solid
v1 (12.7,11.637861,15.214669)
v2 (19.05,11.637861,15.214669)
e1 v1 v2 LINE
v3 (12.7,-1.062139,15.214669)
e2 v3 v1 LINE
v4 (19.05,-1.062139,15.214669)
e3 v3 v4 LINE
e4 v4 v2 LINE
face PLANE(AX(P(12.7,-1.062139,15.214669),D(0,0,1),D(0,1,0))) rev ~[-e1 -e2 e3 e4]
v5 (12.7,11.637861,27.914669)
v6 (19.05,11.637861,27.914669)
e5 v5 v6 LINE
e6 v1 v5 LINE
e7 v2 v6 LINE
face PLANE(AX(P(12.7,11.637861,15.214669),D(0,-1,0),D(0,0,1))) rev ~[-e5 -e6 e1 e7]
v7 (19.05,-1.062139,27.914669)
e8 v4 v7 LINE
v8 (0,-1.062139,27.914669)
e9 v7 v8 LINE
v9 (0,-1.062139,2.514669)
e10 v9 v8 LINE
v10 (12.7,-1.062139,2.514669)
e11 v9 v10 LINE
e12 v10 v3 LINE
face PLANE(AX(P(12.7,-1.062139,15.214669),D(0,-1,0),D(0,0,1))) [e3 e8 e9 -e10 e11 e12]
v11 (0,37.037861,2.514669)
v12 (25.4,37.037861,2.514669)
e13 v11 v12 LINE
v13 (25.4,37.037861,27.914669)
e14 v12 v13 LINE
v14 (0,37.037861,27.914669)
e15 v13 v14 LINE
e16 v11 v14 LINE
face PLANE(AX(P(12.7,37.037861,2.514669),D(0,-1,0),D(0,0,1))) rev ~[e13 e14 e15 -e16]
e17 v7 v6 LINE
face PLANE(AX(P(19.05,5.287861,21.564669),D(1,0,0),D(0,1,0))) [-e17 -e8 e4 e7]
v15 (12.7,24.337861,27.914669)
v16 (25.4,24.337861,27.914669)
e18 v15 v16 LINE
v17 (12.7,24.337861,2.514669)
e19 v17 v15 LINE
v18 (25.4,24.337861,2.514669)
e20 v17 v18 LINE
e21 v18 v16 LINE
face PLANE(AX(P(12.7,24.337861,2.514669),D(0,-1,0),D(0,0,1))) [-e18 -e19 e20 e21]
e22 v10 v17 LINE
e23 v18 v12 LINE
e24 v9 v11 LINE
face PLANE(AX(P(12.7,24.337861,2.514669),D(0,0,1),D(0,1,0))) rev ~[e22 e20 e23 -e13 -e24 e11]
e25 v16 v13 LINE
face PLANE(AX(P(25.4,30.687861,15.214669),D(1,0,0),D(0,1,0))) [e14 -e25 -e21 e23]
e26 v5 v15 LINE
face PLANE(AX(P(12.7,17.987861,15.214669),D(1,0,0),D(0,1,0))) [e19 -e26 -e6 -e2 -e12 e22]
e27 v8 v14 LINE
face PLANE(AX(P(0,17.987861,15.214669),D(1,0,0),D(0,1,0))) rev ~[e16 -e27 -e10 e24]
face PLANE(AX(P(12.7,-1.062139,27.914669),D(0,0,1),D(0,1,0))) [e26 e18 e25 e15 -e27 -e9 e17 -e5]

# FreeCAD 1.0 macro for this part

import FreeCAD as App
import Part
import Sketcher

V = App.Vector
Q = App.Units.Quantity


def add_polygon(sketch, points):
    """Adds a closed chain of lines whose ends are joined by coincident constraints."""
    first, n = sketch.GeometryCount, len(points)
    for a, b in zip(points, points[1:] + points[:1]):
        sketch.addGeometry(Part.LineSegment(App.Vector(*a, 0), App.Vector(*b, 0)), False)
    for i in range(n):
        sketch.addConstraint(Sketcher.Constraint("Coincident", first + i, 2, first + (i + 1) % n, 1))

doc = App.newDocument("Part")
params = doc.addObject("Spreadsheet::Sheet", "Params")
for row, (alias, value) in enumerate([
    ("sketch1_height", "1 in"),
    ("sketch1_width", "1.5 in"),
    ("pad1_length", "0.5 in"),
    ("sketch2_height", "1 in"),
    ("sketch2_width", "0.5 in"),
    ("pad2_length", "0.5 in"),
    ("sketch3_width", "0.5 in"),
    ("pad3_length", "0.25 in"),
], start=1):
    params.set(f"A{row}", alias)
    params.set(f"B{row}", "=" + value)
    params.setAlias(f"B{row}", alias)

body = doc.addObject("PartDesign::Body", "Body")

sketch1 = body.newObject("Sketcher::SketchObject", "Sketch")
sketch1.AttachmentSupport = (doc.getObject("YZ_Plane"), [""])
sketch1.MapMode = "FlatFace"
add_polygon(sketch1, [(-1, 28), (-1, 3), (37, 3), (37, 28)])
sketch1.addConstraint([
    Sketcher.Constraint("Vertical", 0),
    Sketcher.Constraint("Horizontal", 1),
    Sketcher.Constraint("Vertical", 2),
    Sketcher.Constraint("Horizontal", 3),
    Sketcher.Constraint("DistanceY", 0, 2, 0, 1, Q("1 in")),
    Sketcher.Constraint("DistanceX", 1, 1, 1, 2, Q("1.5 in")),
    Sketcher.Constraint("DistanceX", 0, 2, -1, 1, Q("1.062139 mm")),
    Sketcher.Constraint("DistanceY", -1, 1, 0, 2, Q("2.514669 mm")),
])
sketch1.setExpression("Constraints[8]", "Params.sketch1_height")
sketch1.setExpression("Constraints[9]", "Params.sketch1_width")
pad1 = body.newObject("PartDesign::Pad", "Pad")
pad1.Profile = sketch1
pad1.setExpression("Length", "Params.pad1_length")

sketch2 = body.newObject("Sketcher::SketchObject", "Sketch001")
sketch2.AttachmentSupport = (doc.getObject("YZ_Plane"), [""])
sketch2.MapMode = "FlatFace"
sketch2.AttachmentOffset = App.Placement(V(0, 0, 0.5 * 25.4), App.Rotation())
add_polygon(sketch2, [(24, 28), (24, 3), (37, 3), (37, 28)])
sketch2.addConstraint([
    Sketcher.Constraint("Vertical", 0),
    Sketcher.Constraint("Horizontal", 1),
    Sketcher.Constraint("Vertical", 2),
    Sketcher.Constraint("Horizontal", 3),
    Sketcher.Constraint("DistanceY", 0, 2, 0, 1, Q("1 in")),
    Sketcher.Constraint("DistanceX", 1, 1, 1, 2, Q("0.5 in")),
    Sketcher.Constraint("DistanceX", -1, 1, 0, 2, Q("24.337861 mm")),
    Sketcher.Constraint("DistanceY", -1, 1, 0, 2, Q("2.514669 mm")),
])
sketch2.setExpression("Constraints[8]", "Params.sketch2_height")
sketch2.setExpression("Constraints[9]", "Params.sketch2_width")
pad2 = body.newObject("PartDesign::Pad", "Pad001")
pad2.Profile = sketch2
pad2.setExpression("Length", "Params.pad2_length")

sketch3 = body.newObject("Sketcher::SketchObject", "Sketch002")
sketch3.AttachmentSupport = (doc.getObject("YZ_Plane"), [""])
sketch3.MapMode = "FlatFace"
sketch3.AttachmentOffset = App.Placement(V(0, 0, 0.5 * 25.4), App.Rotation())
add_polygon(sketch3, [(-1, 28), (-1, 15), (12, 15), (12, 28)])
sketch3.addConstraint([
    Sketcher.Constraint("Vertical", 0),
    Sketcher.Constraint("Horizontal", 1),
    Sketcher.Constraint("Vertical", 2),
    Sketcher.Constraint("Horizontal", 3),
    Sketcher.Constraint("Equal", 3, 0),
    Sketcher.Constraint("DistanceX", 1, 1, 1, 2, Q("0.5 in")),
    Sketcher.Constraint("DistanceX", 0, 2, -1, 1, Q("1.062139 mm")),
    Sketcher.Constraint("DistanceY", -1, 1, 0, 2, Q("15.214669 mm")),
])
sketch3.setExpression("Constraints[9]", "Params.sketch3_width")
pad3 = body.newObject("PartDesign::Pad", "Pad002")
pad3.Profile = sketch3
pad3.setExpression("Length", "Params.pad3_length")

doc.recompute()
